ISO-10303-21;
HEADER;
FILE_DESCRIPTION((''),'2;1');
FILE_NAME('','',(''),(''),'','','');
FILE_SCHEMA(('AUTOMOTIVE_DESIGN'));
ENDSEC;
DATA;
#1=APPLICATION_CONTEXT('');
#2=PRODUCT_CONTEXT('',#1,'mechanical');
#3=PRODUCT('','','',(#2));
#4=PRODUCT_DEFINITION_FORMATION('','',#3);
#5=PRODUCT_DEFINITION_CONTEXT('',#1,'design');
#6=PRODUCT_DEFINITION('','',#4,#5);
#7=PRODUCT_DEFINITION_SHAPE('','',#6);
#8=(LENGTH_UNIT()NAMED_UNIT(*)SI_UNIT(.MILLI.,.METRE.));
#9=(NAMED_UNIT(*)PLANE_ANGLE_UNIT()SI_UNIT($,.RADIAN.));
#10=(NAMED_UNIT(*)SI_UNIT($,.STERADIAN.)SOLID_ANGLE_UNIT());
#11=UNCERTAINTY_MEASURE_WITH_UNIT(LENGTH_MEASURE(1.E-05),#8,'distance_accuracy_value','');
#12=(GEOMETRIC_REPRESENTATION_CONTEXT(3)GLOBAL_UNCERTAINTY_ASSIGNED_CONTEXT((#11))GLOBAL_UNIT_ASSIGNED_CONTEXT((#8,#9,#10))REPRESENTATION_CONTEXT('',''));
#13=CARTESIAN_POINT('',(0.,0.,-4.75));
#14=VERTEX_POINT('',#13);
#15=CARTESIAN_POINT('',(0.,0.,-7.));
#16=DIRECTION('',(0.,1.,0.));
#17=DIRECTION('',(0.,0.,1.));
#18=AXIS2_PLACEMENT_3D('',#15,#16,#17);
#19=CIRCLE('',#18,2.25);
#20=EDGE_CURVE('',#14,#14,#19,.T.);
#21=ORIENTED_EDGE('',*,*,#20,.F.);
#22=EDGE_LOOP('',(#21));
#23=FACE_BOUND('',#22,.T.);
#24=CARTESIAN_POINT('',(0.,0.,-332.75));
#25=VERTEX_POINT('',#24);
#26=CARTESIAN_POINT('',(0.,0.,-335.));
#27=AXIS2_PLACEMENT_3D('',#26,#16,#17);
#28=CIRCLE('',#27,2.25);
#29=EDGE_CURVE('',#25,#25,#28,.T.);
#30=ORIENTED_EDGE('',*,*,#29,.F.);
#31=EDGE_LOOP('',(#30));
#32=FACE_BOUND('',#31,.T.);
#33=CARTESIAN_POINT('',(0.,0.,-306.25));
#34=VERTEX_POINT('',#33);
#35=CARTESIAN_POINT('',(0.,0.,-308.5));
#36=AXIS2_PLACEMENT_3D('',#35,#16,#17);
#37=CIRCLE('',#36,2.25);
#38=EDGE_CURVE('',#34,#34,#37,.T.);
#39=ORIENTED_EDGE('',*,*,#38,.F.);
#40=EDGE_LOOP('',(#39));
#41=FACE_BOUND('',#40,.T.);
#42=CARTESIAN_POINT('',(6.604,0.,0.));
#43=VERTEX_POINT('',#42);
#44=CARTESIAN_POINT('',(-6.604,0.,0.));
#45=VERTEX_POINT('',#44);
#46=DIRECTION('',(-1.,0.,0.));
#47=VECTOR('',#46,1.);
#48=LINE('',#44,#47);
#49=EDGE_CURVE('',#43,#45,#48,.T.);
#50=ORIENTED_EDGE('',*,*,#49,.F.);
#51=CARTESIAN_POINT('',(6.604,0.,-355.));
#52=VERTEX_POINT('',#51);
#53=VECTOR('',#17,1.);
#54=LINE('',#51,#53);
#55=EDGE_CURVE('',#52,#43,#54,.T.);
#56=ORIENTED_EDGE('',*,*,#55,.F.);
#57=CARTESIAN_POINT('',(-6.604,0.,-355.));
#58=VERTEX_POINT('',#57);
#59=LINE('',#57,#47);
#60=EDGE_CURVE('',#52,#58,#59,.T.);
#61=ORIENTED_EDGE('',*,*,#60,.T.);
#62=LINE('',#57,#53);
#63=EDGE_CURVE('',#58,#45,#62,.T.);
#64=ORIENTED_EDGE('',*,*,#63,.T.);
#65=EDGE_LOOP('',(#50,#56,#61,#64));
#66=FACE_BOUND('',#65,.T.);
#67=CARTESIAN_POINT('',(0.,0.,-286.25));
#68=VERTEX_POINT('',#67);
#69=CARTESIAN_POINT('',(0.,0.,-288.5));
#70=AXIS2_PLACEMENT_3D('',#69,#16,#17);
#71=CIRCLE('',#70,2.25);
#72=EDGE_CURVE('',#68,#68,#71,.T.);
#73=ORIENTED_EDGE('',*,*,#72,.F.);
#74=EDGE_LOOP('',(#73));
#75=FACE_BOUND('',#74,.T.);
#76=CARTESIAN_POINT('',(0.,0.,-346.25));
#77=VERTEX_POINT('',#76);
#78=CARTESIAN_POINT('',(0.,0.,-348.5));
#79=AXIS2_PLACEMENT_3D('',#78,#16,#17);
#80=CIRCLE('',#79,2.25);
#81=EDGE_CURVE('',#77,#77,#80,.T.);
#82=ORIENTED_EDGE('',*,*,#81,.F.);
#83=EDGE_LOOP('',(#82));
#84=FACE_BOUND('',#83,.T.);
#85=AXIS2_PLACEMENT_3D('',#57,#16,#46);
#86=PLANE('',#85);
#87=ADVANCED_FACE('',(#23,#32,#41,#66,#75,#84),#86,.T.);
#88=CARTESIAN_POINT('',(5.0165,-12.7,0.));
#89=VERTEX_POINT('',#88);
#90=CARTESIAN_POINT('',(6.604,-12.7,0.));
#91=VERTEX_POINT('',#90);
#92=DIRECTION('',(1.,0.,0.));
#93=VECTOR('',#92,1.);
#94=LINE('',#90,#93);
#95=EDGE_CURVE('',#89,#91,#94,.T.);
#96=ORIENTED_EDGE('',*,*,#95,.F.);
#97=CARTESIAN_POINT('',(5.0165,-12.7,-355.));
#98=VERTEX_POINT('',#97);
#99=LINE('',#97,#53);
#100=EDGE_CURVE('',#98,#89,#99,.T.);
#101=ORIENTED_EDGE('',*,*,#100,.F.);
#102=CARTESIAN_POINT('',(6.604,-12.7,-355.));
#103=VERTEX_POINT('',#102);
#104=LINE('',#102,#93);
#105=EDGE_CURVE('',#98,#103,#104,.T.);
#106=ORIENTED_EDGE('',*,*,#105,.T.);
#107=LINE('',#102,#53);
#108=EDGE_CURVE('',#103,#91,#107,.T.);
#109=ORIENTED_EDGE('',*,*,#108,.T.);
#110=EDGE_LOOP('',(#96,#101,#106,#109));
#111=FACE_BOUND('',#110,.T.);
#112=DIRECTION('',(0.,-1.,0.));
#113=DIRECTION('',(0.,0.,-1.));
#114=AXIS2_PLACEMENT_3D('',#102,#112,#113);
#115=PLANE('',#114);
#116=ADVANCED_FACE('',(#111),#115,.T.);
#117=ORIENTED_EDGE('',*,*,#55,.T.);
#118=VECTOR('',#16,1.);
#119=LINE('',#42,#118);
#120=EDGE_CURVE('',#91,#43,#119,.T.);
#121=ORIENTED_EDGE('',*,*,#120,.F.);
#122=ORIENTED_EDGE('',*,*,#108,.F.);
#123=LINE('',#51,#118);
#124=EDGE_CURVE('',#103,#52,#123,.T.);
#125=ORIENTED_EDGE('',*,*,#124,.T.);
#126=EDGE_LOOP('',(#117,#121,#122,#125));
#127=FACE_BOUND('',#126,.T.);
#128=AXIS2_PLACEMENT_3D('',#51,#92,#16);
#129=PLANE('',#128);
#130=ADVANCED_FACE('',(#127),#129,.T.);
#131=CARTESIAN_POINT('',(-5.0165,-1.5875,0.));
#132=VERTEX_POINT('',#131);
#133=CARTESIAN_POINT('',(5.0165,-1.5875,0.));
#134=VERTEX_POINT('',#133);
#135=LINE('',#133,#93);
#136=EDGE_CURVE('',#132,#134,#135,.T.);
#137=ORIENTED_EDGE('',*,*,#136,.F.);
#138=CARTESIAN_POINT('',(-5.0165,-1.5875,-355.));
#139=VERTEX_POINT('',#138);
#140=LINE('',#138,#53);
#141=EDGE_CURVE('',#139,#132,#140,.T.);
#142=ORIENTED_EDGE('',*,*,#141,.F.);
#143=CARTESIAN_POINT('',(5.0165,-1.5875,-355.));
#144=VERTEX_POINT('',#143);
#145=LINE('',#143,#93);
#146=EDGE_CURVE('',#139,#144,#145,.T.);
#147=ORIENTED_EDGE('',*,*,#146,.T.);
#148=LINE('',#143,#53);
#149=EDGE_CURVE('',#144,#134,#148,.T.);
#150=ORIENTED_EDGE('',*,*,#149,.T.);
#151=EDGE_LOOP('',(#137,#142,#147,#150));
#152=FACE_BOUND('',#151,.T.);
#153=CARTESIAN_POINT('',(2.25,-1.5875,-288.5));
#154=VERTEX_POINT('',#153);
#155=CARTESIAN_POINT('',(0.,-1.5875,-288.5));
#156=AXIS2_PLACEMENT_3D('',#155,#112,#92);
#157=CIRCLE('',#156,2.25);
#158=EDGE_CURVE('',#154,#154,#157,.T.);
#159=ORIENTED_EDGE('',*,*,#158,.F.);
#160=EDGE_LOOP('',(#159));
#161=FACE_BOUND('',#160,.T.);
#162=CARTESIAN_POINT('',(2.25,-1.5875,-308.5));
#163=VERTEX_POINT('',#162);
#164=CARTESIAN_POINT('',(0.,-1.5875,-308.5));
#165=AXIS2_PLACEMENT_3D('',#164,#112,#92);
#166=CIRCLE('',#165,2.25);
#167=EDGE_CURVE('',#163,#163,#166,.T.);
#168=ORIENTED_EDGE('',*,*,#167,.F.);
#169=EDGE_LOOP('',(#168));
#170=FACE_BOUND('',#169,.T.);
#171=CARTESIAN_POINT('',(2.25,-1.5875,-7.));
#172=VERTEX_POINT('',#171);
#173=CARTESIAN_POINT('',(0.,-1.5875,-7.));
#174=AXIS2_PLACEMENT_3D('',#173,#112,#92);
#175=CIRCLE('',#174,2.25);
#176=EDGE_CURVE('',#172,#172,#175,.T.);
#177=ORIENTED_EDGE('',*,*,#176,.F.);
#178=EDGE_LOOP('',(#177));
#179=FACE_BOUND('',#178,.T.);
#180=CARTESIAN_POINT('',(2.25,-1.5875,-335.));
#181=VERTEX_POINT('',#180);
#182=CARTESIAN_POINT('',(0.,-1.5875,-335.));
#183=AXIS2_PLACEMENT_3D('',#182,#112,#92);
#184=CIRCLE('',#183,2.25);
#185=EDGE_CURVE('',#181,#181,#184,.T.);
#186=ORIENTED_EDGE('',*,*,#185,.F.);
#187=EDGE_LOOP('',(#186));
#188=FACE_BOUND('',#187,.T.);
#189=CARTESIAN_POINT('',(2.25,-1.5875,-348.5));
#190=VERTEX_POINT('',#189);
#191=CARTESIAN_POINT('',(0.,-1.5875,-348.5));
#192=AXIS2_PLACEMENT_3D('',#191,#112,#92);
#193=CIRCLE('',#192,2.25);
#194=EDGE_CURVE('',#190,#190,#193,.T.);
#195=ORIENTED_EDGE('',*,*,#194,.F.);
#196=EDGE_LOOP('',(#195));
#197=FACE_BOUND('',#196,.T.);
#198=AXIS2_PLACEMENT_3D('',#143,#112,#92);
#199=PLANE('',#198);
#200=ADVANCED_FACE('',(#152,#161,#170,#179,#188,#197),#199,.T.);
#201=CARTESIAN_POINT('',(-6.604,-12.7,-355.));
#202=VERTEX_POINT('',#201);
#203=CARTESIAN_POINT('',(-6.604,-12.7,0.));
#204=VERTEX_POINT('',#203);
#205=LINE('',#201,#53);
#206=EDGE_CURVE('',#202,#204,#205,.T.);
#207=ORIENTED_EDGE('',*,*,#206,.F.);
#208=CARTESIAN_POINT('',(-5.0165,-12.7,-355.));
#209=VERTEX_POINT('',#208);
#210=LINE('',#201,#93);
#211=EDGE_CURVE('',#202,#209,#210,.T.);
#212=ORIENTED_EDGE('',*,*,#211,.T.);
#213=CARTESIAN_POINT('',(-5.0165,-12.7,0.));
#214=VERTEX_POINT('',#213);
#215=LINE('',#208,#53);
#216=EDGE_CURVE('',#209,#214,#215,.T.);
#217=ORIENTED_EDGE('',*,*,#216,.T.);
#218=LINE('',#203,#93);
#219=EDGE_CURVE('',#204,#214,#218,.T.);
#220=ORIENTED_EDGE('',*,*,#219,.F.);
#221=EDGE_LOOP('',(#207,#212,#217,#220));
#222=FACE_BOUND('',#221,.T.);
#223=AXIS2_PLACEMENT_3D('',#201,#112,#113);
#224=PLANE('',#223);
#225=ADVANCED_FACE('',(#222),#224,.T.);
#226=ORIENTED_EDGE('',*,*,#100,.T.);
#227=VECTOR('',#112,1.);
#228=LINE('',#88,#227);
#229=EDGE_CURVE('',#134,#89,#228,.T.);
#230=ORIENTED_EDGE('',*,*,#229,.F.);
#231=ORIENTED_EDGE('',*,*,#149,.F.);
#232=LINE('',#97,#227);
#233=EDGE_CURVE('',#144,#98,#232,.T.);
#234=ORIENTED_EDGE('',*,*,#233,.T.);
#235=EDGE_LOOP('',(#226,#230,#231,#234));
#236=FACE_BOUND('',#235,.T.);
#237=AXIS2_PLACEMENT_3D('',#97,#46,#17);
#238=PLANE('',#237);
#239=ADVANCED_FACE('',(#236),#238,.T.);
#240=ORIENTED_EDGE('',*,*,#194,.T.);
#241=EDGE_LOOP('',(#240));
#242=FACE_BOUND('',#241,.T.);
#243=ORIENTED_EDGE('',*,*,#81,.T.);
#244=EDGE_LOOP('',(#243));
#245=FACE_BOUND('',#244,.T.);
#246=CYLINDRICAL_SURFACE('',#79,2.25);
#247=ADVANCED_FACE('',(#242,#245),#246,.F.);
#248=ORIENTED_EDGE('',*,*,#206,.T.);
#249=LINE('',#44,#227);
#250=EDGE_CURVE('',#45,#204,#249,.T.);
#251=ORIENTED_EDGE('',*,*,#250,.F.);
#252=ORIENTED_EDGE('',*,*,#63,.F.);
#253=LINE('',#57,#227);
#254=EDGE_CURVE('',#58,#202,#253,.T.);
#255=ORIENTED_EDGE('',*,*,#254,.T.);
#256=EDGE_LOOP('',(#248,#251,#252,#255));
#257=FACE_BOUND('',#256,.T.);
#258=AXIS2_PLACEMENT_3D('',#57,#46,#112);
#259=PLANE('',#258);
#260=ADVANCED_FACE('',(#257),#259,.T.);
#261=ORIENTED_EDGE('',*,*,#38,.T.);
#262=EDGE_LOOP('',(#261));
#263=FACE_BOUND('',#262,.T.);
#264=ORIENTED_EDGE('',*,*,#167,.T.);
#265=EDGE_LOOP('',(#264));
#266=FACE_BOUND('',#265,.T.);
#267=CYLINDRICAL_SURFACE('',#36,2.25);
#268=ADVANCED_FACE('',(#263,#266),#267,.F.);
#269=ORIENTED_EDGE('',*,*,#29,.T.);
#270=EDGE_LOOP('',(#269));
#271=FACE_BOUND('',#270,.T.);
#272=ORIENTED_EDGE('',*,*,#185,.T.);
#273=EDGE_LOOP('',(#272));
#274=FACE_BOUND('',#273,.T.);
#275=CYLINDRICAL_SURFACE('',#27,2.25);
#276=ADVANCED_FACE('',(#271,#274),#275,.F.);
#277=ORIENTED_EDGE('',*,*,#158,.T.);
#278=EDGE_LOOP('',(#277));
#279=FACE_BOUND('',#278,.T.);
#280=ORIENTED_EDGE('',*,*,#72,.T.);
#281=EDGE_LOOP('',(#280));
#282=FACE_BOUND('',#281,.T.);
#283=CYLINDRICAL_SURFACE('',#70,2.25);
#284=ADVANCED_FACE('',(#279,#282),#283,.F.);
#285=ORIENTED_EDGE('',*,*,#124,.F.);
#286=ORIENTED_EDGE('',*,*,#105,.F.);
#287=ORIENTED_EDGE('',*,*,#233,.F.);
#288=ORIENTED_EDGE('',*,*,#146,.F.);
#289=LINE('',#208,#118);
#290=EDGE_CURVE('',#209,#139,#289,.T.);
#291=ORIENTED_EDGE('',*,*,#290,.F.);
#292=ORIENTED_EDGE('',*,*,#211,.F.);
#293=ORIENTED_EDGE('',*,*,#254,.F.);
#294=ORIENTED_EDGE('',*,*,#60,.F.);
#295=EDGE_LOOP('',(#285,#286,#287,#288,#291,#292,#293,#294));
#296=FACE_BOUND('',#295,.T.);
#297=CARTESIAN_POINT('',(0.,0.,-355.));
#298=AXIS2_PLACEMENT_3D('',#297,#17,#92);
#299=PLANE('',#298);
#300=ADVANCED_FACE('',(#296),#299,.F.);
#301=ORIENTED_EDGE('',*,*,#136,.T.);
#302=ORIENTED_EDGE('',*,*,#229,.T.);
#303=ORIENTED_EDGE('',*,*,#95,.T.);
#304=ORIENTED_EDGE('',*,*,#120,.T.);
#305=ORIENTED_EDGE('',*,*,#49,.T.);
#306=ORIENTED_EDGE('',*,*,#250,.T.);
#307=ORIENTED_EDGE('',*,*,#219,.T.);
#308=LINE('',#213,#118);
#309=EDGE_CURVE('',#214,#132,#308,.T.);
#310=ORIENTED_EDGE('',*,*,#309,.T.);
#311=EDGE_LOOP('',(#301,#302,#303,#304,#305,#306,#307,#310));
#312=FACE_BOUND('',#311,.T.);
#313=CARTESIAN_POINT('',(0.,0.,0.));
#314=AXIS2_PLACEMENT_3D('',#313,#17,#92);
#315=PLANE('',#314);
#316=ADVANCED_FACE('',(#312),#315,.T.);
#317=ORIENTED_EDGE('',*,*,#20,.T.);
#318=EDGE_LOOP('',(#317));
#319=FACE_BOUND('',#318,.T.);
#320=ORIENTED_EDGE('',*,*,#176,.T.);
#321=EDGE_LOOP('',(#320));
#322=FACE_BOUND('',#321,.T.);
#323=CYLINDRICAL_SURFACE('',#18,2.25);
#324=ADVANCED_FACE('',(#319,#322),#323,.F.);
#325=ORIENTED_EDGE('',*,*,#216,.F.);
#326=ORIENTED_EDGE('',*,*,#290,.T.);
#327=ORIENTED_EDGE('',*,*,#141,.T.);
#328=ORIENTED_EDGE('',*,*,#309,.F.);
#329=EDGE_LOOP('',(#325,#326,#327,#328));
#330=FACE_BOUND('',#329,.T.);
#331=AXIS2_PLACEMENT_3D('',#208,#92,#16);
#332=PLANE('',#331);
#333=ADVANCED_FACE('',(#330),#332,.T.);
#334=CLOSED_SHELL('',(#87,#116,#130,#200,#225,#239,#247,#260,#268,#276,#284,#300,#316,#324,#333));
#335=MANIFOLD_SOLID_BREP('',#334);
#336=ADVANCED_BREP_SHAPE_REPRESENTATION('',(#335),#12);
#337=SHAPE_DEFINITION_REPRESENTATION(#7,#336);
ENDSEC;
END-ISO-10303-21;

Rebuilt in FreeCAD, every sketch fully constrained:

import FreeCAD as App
import Part
import Sketcher

V = App.Vector
Q = App.Units.Quantity

doc = App.newDocument("Part")
body = doc.addObject("PartDesign::Body", "Body")

# Sketch on XY plane
sketch1 = body.newObject("Sketcher::SketchObject", "Sketch")
sketch1.AttachmentSupport = (doc.getObject("XY_Plane"), [""])
sketch1.MapMode = "FlatFace"
sketch1.addGeometry([
    Part.LineSegment(V(6.604, 0, 0), V(-6.604, 0, 0)),  # 0
    Part.LineSegment(V(-6.604, 0, 0), V(-6.604, -12.7, 0)),  # 1
    Part.LineSegment(V(-6.604, -12.7, 0), V(-5.0165, -12.7, 0)),  # 2
    Part.LineSegment(V(-5.0165, -12.7, 0), V(-5.0165, -1.5875, 0)),  # 3
    Part.LineSegment(V(-5.0165, -1.5875, 0), V(5.0165, -1.5875, 0)),  # 4
    Part.LineSegment(V(5.0165, -1.5875, 0), V(5.0165, -12.7, 0)),  # 5
    Part.LineSegment(V(5.0165, -12.7, 0), V(6.604, -12.7, 0)),  # 6
    Part.LineSegment(V(6.604, -12.7, 0), V(6.604, 0, 0)),  # 7
], False)
sketch1.addConstraint([
    Sketcher.Constraint("Coincident", 0, 2, 1, 1),
    Sketcher.Constraint("Coincident", 1, 2, 2, 1),
    Sketcher.Constraint("Coincident", 2, 2, 3, 1),
    Sketcher.Constraint("Coincident", 3, 2, 4, 1),
    Sketcher.Constraint("Coincident", 4, 2, 5, 1),
    Sketcher.Constraint("Coincident", 5, 2, 6, 1),
    Sketcher.Constraint("Coincident", 6, 2, 7, 1),
    Sketcher.Constraint("Coincident", 7, 2, 0, 1),
    Sketcher.Constraint("Horizontal", 0),
    Sketcher.Constraint("Vertical", 1),
    Sketcher.Constraint("Horizontal", 2),
    Sketcher.Constraint("Vertical", 3),
    Sketcher.Constraint("Horizontal", 4),
    Sketcher.Constraint("Vertical", 5),
    Sketcher.Constraint("Horizontal", 6),
    Sketcher.Constraint("Vertical", 7),
    Sketcher.Constraint("Symmetric", 0, 2, 7, 2, -1, 1),
    Sketcher.Constraint("Symmetric", 2, 2, 5, 2, -2),
    Sketcher.Constraint("DistanceY", 1, 2, 1, 1, Q("0.5 in")),
    Sketcher.Constraint("DistanceX", 0, 2, 0, 1, Q("0.52 in")),
    Sketcher.Constraint("DistanceX", 2, 1, 2, 2, Q("0.0625 in")),
    Sketcher.Constraint("DistanceY", 3, 1, 3, 2, Q("0.4375 in")),
])
pad1 = body.newObject("PartDesign::Pad", "Pad")
pad1.Profile = sketch1
pad1.Length = 355
pad1.Reversed = True

# Sketch on XZ plane
sketch2 = body.newObject("Sketcher::SketchObject", "Sketch001")
sketch2.AttachmentSupport = (doc.getObject("XZ_Plane"), [""])
sketch2.MapMode = "FlatFace"
sketch2.addGeometry([
    Part.Circle(V(0, -288.5, 0), V(0, 0, 1), 2.25),  # 0
    Part.Circle(V(0, -7, 0), V(0, 0, 1), 2.25),  # 1
    Part.Circle(V(0, -348.5, 0), V(0, 0, 1), 2.25),  # 2
    Part.Circle(V(0, -308.5, 0), V(0, 0, 1), 2.25),  # 3
    Part.Circle(V(0, -335, 0), V(0, 0, 1), 2.25),  # 4
], False)
sketch2.addConstraint([
    Sketcher.Constraint("Equal", 0, 1),
    Sketcher.Constraint("Equal", 1, 2),
    Sketcher.Constraint("Equal", 2, 3),
    Sketcher.Constraint("Equal", 3, 4),
    Sketcher.Constraint("PointOnObject", 0, 3, -2),
    Sketcher.Constraint("PointOnObject", 1, 3, -2),
    Sketcher.Constraint("PointOnObject", 2, 3, -2),
    Sketcher.Constraint("PointOnObject", 3, 3, -2),
    Sketcher.Constraint("PointOnObject", 4, 3, -2),
    Sketcher.Constraint("Diameter", 0, Q("4.5 mm")),
    Sketcher.Constraint("DistanceY", 0, 3, -1, 1, Q("288.5 mm")),
    Sketcher.Constraint("DistanceY", 1, 3, -1, 1, Q("7 mm")),
    Sketcher.Constraint("DistanceY", 2, 3, -1, 1, Q("348.5 mm")),
    Sketcher.Constraint("DistanceY", 3, 3, -1, 1, Q("308.5 mm")),
    Sketcher.Constraint("DistanceY", 4, 3, -1, 1, Q("335 mm")),
])
doc.recompute()
hole = body.newObject("PartDesign::Hole", "Hole")
hole.Profile = sketch2
hole.ThreadType = "None"
hole.Diameter = 4.5
hole.DepthType = "ThroughAll"
hole.Reversed = True

doc.recompute()
